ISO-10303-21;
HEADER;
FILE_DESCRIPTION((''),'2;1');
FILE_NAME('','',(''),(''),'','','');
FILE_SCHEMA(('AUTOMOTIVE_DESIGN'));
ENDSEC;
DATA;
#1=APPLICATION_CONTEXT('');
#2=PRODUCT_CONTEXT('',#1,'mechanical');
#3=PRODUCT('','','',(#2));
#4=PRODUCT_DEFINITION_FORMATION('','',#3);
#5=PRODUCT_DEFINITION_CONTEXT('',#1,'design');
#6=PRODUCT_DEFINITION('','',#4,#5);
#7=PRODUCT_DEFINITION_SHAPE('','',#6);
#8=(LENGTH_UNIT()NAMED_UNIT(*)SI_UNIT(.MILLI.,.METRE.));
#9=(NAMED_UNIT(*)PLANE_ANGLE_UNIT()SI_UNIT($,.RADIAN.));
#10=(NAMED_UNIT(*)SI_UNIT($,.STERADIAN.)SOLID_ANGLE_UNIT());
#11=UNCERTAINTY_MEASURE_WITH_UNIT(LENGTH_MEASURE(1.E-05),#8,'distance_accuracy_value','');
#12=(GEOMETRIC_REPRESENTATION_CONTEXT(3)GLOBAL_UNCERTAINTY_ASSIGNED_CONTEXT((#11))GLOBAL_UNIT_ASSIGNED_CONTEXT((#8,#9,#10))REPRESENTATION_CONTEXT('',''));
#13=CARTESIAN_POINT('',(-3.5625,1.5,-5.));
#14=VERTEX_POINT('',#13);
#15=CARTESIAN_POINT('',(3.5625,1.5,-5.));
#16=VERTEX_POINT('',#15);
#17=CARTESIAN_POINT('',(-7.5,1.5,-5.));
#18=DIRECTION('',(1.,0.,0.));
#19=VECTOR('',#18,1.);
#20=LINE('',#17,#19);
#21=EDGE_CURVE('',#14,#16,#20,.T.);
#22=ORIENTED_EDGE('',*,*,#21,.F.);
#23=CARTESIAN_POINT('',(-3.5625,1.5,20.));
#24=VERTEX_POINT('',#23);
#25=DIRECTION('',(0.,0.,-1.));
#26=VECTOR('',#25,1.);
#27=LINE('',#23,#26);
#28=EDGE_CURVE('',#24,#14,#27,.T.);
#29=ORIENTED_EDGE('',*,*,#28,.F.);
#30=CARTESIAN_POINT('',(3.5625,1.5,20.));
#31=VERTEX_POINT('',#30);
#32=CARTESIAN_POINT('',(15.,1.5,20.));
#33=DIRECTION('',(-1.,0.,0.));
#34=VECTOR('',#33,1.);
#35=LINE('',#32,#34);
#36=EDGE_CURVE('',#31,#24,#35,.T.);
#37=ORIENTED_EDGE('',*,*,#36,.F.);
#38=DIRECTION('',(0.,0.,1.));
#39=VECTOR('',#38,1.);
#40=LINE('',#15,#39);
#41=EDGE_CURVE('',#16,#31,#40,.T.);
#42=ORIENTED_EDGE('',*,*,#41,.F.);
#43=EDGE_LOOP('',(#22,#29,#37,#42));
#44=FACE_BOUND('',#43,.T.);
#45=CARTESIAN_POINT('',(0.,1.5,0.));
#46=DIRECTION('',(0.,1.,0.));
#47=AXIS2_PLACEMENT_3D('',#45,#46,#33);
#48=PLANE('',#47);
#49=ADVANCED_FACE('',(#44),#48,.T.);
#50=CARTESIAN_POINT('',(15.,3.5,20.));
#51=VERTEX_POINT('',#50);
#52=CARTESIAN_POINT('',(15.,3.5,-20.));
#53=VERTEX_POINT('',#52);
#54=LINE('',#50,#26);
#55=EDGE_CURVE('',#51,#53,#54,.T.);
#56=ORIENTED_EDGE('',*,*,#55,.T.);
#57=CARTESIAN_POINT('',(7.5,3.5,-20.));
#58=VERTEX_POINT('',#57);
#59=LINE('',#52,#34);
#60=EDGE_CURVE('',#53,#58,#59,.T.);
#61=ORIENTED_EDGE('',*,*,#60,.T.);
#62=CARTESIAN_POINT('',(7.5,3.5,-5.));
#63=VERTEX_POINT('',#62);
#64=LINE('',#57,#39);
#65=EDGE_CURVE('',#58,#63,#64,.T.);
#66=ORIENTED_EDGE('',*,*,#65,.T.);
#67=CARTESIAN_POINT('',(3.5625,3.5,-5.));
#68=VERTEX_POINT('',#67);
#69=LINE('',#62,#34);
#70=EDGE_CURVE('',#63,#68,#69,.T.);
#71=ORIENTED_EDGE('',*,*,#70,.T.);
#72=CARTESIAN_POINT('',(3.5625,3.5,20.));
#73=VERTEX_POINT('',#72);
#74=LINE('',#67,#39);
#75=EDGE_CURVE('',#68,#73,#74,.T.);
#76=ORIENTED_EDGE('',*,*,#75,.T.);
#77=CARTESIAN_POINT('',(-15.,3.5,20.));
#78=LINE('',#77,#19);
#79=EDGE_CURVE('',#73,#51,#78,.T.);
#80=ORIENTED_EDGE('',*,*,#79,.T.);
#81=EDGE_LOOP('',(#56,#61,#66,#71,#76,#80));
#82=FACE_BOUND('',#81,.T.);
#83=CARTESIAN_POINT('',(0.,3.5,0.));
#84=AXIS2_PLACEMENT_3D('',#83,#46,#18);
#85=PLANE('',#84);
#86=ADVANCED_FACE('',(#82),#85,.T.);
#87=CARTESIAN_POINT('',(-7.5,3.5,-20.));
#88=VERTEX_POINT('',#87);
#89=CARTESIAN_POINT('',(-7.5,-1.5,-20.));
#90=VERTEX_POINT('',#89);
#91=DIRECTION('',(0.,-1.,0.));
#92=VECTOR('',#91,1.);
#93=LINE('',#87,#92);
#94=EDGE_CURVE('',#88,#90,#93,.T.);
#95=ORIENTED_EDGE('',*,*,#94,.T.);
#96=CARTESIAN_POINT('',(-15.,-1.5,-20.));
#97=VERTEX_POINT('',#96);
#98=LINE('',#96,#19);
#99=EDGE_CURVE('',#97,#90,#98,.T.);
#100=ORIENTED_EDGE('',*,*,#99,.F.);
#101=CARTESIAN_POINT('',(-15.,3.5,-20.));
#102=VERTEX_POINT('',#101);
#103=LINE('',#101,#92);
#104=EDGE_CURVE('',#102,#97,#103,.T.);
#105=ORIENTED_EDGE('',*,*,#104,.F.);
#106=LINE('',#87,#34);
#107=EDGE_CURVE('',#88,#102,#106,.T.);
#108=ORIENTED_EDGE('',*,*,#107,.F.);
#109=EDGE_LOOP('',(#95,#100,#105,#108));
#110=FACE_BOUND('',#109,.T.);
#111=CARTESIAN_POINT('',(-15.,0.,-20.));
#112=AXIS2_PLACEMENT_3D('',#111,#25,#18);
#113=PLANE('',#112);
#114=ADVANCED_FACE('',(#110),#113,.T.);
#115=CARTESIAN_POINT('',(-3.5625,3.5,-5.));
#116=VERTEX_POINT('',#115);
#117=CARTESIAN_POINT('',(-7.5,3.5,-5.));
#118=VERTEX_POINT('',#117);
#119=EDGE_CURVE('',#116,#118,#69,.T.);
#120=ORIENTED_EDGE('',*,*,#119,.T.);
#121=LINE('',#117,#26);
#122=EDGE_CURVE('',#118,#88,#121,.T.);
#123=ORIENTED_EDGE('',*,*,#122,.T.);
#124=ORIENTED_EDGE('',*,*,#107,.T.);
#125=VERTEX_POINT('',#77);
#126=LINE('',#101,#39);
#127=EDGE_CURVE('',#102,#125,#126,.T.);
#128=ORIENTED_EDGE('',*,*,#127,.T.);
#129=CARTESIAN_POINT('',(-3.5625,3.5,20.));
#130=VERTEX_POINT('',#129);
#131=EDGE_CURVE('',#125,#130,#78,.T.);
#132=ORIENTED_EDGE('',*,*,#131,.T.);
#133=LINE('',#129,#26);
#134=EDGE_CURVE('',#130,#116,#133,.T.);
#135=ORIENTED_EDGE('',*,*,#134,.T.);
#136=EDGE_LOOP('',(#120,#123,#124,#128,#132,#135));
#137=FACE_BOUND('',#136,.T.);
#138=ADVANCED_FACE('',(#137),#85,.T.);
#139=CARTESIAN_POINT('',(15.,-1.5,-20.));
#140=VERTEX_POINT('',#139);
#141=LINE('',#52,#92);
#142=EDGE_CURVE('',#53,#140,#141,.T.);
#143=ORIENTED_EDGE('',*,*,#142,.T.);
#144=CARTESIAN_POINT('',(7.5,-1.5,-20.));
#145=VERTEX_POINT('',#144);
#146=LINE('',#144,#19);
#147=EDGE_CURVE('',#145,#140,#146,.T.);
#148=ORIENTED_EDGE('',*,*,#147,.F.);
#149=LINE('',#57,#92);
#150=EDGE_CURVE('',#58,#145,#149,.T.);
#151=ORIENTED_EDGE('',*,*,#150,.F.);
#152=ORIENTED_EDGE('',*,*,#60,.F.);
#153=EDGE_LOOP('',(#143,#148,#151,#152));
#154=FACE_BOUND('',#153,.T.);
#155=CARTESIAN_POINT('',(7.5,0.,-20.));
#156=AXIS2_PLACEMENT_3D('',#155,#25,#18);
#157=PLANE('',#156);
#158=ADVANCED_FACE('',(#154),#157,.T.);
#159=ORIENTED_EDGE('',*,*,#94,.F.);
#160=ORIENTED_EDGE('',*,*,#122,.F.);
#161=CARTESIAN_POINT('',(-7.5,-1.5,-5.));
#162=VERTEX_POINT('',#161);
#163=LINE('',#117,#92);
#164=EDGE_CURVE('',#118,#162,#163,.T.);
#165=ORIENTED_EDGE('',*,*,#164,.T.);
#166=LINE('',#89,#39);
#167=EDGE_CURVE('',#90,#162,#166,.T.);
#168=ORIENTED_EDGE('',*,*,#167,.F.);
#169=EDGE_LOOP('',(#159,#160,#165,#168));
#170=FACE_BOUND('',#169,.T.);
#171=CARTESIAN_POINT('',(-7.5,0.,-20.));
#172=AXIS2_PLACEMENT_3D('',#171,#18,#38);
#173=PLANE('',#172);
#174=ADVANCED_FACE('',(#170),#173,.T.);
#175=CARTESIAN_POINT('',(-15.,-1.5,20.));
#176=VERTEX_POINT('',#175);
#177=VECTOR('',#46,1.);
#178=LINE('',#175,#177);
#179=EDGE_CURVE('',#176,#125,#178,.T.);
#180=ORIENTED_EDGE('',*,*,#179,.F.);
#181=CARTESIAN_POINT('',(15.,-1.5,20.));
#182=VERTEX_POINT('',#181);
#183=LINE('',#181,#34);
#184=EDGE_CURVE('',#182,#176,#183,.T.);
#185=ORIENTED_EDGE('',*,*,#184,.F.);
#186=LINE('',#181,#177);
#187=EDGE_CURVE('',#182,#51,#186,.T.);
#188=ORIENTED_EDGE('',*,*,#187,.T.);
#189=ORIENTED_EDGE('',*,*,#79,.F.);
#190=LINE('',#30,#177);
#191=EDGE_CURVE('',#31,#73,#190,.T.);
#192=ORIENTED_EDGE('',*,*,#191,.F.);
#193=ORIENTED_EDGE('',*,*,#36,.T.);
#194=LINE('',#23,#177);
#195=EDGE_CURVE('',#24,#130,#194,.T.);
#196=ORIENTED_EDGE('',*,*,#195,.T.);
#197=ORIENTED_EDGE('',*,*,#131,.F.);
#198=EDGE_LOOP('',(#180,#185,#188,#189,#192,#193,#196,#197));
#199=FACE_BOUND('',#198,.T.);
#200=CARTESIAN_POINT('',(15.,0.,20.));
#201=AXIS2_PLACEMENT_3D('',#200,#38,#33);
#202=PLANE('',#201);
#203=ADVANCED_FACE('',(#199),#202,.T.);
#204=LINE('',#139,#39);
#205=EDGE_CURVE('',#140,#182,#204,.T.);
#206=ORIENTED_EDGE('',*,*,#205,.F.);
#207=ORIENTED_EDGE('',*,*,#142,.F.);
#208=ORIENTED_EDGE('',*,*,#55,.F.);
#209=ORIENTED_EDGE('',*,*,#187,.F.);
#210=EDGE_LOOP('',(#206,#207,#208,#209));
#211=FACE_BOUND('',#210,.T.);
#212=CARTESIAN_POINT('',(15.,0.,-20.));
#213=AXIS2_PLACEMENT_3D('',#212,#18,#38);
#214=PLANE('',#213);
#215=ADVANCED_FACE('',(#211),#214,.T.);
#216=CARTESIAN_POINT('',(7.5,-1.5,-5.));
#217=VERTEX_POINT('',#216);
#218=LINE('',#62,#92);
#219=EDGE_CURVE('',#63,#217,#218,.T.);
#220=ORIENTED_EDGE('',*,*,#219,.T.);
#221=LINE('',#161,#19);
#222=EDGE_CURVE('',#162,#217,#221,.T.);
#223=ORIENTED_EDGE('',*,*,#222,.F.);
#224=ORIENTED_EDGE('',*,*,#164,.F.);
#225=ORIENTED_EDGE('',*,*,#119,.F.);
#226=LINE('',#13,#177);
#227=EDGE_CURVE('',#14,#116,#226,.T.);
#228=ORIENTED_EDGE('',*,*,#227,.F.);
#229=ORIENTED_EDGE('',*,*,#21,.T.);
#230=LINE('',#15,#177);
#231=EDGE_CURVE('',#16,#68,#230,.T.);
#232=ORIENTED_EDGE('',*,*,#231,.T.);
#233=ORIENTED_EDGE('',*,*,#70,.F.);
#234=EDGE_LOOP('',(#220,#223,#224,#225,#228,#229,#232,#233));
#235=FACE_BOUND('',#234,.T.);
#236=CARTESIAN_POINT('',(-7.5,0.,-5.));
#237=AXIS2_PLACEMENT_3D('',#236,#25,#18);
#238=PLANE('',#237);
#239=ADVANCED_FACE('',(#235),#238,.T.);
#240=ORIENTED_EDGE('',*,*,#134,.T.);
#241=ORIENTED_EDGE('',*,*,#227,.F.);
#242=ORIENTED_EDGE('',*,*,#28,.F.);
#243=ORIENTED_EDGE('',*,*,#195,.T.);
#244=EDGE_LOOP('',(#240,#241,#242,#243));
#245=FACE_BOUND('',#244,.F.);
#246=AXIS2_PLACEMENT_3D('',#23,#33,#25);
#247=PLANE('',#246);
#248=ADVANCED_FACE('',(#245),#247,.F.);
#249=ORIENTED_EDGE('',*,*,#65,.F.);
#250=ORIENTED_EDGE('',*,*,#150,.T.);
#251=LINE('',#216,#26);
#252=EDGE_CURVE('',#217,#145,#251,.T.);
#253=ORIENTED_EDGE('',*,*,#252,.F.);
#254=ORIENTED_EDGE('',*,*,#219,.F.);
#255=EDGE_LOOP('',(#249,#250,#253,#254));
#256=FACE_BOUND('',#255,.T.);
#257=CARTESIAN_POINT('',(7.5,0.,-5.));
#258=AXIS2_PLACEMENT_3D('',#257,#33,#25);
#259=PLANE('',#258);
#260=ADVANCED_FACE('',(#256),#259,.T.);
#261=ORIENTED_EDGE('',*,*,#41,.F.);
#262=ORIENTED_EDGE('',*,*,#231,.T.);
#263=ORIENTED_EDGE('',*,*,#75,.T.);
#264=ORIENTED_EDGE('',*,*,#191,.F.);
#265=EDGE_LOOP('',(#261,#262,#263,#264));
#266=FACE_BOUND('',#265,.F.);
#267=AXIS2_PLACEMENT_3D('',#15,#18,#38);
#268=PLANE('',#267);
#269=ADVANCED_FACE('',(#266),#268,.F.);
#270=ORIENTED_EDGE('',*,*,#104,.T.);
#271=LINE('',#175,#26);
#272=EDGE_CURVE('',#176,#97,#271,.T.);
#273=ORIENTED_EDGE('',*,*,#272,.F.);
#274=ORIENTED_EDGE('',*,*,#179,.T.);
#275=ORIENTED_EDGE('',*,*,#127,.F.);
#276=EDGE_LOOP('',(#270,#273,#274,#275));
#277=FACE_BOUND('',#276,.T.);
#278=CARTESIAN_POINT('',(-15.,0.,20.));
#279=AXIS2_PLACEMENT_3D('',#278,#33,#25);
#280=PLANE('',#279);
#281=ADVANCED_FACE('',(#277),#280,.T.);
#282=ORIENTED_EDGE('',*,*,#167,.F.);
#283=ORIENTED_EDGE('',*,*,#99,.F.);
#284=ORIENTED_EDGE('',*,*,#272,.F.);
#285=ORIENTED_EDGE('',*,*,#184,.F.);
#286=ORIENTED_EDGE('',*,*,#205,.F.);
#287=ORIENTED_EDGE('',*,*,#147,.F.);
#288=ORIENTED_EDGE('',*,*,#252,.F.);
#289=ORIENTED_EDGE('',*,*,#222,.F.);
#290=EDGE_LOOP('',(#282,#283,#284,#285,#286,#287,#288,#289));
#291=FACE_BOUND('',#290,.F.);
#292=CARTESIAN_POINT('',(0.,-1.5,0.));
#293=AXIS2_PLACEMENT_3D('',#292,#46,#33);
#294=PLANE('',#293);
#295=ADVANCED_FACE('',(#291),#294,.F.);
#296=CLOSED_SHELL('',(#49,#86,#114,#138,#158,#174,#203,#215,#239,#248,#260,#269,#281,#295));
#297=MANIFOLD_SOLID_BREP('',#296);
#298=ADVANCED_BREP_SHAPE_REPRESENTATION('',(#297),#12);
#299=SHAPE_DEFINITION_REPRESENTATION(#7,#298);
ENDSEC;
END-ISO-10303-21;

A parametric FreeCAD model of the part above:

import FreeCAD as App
import Part
import Sketcher

doc = App.newDocument("Part")
body = doc.addObject("PartDesign::Body", "Body")

sketch1 = body.newObject("Sketcher::SketchObject", "Sketch")
sketch1.AttachmentSupport = (doc.getObject("XZ_Plane"), [""])
sketch1.MapMode = "FlatFace"
sketch1.addGeometry([
    Part.LineSegment(App.Vector(-15, -20, 0), App.Vector(-15, 20, 0)),
    Part.LineSegment(App.Vector(-15, 20, 0), App.Vector(15, 20, 0)),
    Part.LineSegment(App.Vector(15, 20, 0), App.Vector(15, -20, 0)),
    Part.LineSegment(App.Vector(15, -20, 0), App.Vector(7.5, -20, 0)),
    Part.LineSegment(App.Vector(7.5, -20, 0), App.Vector(7.5, -5, 0)),
    Part.LineSegment(App.Vector(7.5, -5, 0), App.Vector(-7.5, -5, 0)),
    Part.LineSegment(App.Vector(-7.5, -5, 0), App.Vector(-7.5, -20, 0)),
    Part.LineSegment(App.Vector(-7.5, -20, 0), App.Vector(-15, -20, 0)),
], False)
sketch1.addConstraint([
    Sketcher.Constraint("Coincident", 0, 2, 1, 1),
    Sketcher.Constraint("Coincident", 1, 2, 2, 1),
    Sketcher.Constraint("Coincident", 2, 2, 3, 1),
    Sketcher.Constraint("Coincident", 3, 2, 4, 1),
    Sketcher.Constraint("Coincident", 4, 2, 5, 1),
    Sketcher.Constraint("Coincident", 5, 2, 6, 1),
    Sketcher.Constraint("Coincident", 6, 2, 7, 1),
    Sketcher.Constraint("Coincident", 7, 2, 0, 1),
    Sketcher.Constraint("Vertical", 0),
    Sketcher.Constraint("Horizontal", 1),
    Sketcher.Constraint("Vertical", 2),
    Sketcher.Constraint("Horizontal", 3),
    Sketcher.Constraint("Vertical", 4),
    Sketcher.Constraint("Horizontal", 5),
    Sketcher.Constraint("Vertical", 6),
    Sketcher.Constraint("Horizontal", 7),
    Sketcher.Constraint("Symmetric", 0, 2, 2, 2, -1, 1),
    Sketcher.Constraint("Symmetric", 3, 2, 6, 2, -2),
    Sketcher.Constraint("Equal", 5, 4),
    Sketcher.Constraint("DistanceX", 1, 1, 1, 2, 30.0),
    Sketcher.Constraint("DistanceX", 5, 2, 5, 1, 15.0),
    Sketcher.Constraint("DistanceY", 0, 1, 0, 2, 40.0),
])
pad1 = body.newObject("PartDesign::Pad", "Pad")
pad1.Profile = sketch1
pad1.Length = 3
pad1.Midplane = True

sketch2 = body.newObject("Sketcher::SketchObject", "Sketch001")
sketch2.AttachmentSupport = (doc.getObject("XZ_Plane"), [""])
sketch2.MapMode = "FlatFace"
sketch2.AttachmentOffset = App.Placement(App.Vector(0, 0, -1.5), App.Rotation())
sketch2.addGeometry([
    Part.LineSegment(App.Vector(3.5625, -5, 0), App.Vector(3.5625, 20, 0)),
    Part.LineSegment(App.Vector(3.5625, 20, 0), App.Vector(15, 20, 0)),
    Part.LineSegment(App.Vector(15, 20, 0), App.Vector(15, -20, 0)),
    Part.LineSegment(App.Vector(15, -20, 0), App.Vector(7.5, -20, 0)),
    Part.LineSegment(App.Vector(7.5, -20, 0), App.Vector(7.5, -5, 0)),
    Part.LineSegment(App.Vector(7.5, -5, 0), App.Vector(3.5625, -5, 0)),
    Part.LineSegment(App.Vector(-15, 20, 0), App.Vector(-3.5625, 20, 0)),
    Part.LineSegment(App.Vector(-3.5625, 20, 0), App.Vector(-3.5625, -5, 0)),
    Part.LineSegment(App.Vector(-3.5625, -5, 0), App.Vector(-7.5, -5, 0)),
    Part.LineSegment(App.Vector(-7.5, -5, 0), App.Vector(-7.5, -20, 0)),
    Part.LineSegment(App.Vector(-7.5, -20, 0), App.Vector(-15, -20, 0)),
    Part.LineSegment(App.Vector(-15, -20, 0), App.Vector(-15, 20, 0)),
], False)
sketch2.addConstraint([
    Sketcher.Constraint("Coincident", 0, 2, 1, 1),
    Sketcher.Constraint("Coincident", 1, 2, 2, 1),
    Sketcher.Constraint("Coincident", 2, 2, 3, 1),
    Sketcher.Constraint("Coincident", 3, 2, 4, 1),
    Sketcher.Constraint("Coincident", 4, 2, 5, 1),
    Sketcher.Constraint("Coincident", 5, 2, 0, 1),
    Sketcher.Constraint("Coincident", 6, 2, 7, 1),
    Sketcher.Constraint("Coincident", 7, 2, 8, 1),
    Sketcher.Constraint("Coincident", 8, 2, 9, 1),
    Sketcher.Constraint("Coincident", 9, 2, 10, 1),
    Sketcher.Constraint("Coincident", 10, 2, 11, 1),
    Sketcher.Constraint("Coincident", 11, 2, 6, 1),
    Sketcher.Constraint("Vertical", 0),
    Sketcher.Constraint("Horizontal", 1),
    Sketcher.Constraint("Vertical", 2),
    Sketcher.Constraint("Horizontal", 3),
    Sketcher.Constraint("Vertical", 4),
    Sketcher.Constraint("Horizontal", 5),
    Sketcher.Constraint("Horizontal", 6),
    Sketcher.Constraint("Vertical", 7),
    Sketcher.Constraint("Horizontal", 8),
    Sketcher.Constraint("Vertical", 9),
    Sketcher.Constraint("Horizontal", 10),
    Sketcher.Constraint("Vertical", 11),
    Sketcher.Constraint("Symmetric", 1, 2, 10, 2, -1, 1),
    Sketcher.Constraint("Symmetric", 0, 2, 6, 2, -2),
    Sketcher.Constraint("Symmetric", 4, 2, 8, 2, -2),
    Sketcher.Constraint("Horizontal", 3, 2, 9, 2),
    Sketcher.Constraint("DistanceY", 0, 1, 0, 2, 25.0),
    Sketcher.Constraint("DistanceY", 2, 2, 2, 1, 40.0),
    Sketcher.Constraint("DistanceX", 3, 2, 3, 1, 7.5),
    Sketcher.Constraint("DistanceX", -1, 1, 1, 2, 15.0),
    Sketcher.Constraint("DistanceX", 6, 2, 0, 2, 7.125),
])
pad2 = body.newObject("PartDesign::Pad", "Pad001")
pad2.Profile = sketch2
pad2.Length = 2
pad2.Reversed = True

doc.recompute()
